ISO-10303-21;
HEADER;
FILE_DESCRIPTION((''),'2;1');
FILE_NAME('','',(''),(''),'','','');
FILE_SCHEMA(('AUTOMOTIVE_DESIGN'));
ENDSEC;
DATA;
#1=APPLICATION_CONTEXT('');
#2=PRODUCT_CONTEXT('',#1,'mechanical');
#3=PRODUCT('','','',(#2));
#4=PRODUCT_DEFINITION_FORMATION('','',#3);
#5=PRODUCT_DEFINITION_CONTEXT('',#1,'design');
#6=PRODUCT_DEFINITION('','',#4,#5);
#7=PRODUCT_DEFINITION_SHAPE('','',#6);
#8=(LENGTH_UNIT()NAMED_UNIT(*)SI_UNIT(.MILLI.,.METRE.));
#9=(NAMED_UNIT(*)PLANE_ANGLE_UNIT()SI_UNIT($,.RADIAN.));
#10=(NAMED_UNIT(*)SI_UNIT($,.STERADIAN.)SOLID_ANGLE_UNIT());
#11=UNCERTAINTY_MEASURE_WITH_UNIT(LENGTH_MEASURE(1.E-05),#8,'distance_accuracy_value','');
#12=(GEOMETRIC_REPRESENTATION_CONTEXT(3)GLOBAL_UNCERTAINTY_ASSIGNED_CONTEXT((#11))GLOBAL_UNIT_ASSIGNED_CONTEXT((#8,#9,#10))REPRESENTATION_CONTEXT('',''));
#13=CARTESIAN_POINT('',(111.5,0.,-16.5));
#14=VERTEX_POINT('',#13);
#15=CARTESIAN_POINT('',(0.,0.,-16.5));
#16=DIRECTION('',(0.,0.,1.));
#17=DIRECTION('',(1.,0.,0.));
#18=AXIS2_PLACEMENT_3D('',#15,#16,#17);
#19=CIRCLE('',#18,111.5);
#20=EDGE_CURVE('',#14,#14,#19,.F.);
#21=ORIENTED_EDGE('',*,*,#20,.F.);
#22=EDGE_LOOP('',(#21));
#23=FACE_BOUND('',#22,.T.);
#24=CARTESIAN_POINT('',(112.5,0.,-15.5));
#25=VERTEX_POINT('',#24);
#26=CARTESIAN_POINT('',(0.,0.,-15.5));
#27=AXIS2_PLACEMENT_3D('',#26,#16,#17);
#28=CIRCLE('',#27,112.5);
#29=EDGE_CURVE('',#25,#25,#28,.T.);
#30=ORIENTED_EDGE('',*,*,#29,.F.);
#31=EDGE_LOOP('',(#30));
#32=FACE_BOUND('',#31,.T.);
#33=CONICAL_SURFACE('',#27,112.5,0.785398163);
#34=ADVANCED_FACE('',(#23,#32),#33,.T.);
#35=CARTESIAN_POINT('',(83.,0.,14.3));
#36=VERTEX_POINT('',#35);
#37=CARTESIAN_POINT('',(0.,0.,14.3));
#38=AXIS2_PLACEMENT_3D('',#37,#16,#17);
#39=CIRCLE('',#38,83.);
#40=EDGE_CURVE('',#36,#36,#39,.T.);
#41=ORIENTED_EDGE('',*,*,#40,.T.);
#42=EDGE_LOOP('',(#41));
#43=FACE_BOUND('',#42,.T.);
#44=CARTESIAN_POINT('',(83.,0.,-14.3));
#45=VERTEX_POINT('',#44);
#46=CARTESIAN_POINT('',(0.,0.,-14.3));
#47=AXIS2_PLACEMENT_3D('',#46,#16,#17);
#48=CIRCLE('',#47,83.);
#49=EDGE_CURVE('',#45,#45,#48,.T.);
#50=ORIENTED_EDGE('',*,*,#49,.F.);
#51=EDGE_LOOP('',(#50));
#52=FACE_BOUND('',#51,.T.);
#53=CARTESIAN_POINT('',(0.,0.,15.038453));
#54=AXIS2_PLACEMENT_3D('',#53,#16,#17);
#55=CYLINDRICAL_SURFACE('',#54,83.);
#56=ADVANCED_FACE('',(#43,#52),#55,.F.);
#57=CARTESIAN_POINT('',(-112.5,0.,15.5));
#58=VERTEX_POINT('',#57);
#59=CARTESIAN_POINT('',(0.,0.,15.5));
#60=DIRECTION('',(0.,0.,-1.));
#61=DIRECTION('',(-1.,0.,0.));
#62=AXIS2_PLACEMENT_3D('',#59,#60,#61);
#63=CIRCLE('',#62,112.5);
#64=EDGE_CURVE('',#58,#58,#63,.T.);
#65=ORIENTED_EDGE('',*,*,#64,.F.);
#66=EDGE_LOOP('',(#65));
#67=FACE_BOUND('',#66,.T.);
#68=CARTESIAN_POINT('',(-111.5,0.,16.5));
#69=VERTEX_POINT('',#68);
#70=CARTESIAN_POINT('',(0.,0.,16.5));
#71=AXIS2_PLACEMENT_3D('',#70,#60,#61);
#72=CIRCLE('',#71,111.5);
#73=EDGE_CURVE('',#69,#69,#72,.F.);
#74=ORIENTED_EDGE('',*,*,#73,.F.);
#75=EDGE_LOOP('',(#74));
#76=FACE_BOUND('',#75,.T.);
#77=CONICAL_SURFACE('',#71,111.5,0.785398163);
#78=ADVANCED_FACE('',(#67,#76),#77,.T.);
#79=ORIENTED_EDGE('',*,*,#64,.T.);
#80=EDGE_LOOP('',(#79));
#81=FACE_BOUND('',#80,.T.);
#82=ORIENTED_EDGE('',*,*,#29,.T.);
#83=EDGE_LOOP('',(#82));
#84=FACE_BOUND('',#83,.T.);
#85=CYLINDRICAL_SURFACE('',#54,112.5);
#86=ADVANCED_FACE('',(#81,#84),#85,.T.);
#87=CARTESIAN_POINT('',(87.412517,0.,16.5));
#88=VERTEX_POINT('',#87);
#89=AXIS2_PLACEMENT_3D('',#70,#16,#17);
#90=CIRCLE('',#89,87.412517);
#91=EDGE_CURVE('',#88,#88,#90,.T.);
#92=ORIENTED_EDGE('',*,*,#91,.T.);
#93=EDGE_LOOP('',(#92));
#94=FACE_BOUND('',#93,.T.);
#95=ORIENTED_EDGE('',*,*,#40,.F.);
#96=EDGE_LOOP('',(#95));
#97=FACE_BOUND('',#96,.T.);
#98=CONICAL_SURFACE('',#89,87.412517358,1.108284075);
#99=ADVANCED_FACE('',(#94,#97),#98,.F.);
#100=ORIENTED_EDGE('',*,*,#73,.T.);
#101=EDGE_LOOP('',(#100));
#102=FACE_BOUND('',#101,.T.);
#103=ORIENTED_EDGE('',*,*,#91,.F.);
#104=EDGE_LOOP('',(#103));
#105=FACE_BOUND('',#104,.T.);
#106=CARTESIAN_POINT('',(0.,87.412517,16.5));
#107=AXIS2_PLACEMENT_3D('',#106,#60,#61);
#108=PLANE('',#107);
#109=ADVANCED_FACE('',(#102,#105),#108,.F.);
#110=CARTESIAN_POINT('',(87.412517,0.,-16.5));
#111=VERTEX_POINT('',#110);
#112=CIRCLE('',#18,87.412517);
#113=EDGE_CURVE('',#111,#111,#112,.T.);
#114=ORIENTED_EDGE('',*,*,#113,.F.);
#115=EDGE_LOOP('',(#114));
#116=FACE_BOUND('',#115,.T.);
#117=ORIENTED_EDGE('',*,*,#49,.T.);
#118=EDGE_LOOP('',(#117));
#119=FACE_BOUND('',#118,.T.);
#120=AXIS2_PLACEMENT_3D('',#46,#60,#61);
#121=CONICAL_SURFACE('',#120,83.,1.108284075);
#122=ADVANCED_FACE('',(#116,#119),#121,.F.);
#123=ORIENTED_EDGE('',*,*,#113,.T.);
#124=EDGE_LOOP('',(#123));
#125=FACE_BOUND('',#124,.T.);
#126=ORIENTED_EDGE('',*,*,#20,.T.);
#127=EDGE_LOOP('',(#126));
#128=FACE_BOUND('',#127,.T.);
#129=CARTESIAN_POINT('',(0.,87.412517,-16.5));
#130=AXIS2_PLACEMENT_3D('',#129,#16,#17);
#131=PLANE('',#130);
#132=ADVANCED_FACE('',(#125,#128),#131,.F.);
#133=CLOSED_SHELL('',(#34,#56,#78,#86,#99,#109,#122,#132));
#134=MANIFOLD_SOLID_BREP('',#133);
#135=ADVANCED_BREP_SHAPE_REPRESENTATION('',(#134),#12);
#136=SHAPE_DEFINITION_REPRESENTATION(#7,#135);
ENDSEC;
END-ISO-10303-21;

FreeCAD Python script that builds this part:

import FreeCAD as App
import Part
import Sketcher
Q = App.Units.Quantity


def edges_at(feature, points):
    """Names of the edges that pass closest to the given points."""
    edges = feature.Shape.Edges
    near = lambda p: min(range(len(edges)), key=lambda i: edges[i].distToShape(Part.Vertex(*p))[0])
    return sorted({f"Edge{near(p) + 1}" for p in points})


def add_polygon(sketch, points):
    """Adds a closed chain of lines whose ends are joined by coincident constraints."""
    first, n = sketch.GeometryCount, len(points)
    for a, b in zip(points, points[1:] + points[:1]):
        sketch.addGeometry(Part.LineSegment(App.Vector(*a, 0), App.Vector(*b, 0)), False)
    for i in range(n):
        sketch.addConstraint(Sketcher.Constraint("Coincident", first + i, 2, first + (i + 1) % n, 1))

doc = App.newDocument("Part")
body = doc.addObject("PartDesign::Body", "Body")

# Sketch on YZ plane
sketch1 = body.newObject("Sketcher::SketchObject", "Sketch")
sketch1.AttachmentSupport = (doc.getObject("YZ_Plane"), [""])
sketch1.MapMode = "FlatFace"
add_polygon(sketch1, [(83, 14.3), (83, -14.3), (87.4, -16.5), (112.5, -16.5), (112.5, 16.5), (87.4, 16.5)])  # lines 0-5
sketch1.addConstraint(Sketcher.Constraint("Vertical", 0))
sketch1.addConstraint(Sketcher.Constraint("Horizontal", 2))
sketch1.addConstraint(Sketcher.Constraint("Vertical", 3))
sketch1.addConstraint(Sketcher.Constraint("Horizontal", 4))
sketch1.addConstraint(Sketcher.Constraint("Symmetric", 1, 2, 4, 2, -1))
sketch1.addConstraint(Sketcher.Constraint("Equal", 1, 5))
sketch1.addConstraint(Sketcher.Constraint("DistanceY", 3, 1, 3, 2, 33.0))
sketch1.addConstraint(Sketcher.Constraint("DistanceY", 0, 2, 0, 1, 28.6))
sketch1.addConstraint(Sketcher.Constraint("DistanceX", -1, 1, 0, 2, 83.0))
sketch1.addConstraint(Sketcher.Constraint("Angle", 1, Q("-26.5 deg")))
sketch1.addConstraint(Sketcher.Constraint("DistanceX", -1, 1, 2, 2, 112.5))
revolution = body.newObject("PartDesign::Revolution", "Revolution")
revolution.Profile = sketch1
revolution.ReferenceAxis = (sketch1, ["V_Axis"])
revolution.Angle = 360
doc.recompute()

chamfer = body.newObject("PartDesign::Chamfer", "Chamfer")
chamfer.Base = (revolution, edges_at(revolution, [(-112.5, 0, -16.5), (-112.5, 0, 16.5)]))
chamfer.Size = 1

doc.recompute()
